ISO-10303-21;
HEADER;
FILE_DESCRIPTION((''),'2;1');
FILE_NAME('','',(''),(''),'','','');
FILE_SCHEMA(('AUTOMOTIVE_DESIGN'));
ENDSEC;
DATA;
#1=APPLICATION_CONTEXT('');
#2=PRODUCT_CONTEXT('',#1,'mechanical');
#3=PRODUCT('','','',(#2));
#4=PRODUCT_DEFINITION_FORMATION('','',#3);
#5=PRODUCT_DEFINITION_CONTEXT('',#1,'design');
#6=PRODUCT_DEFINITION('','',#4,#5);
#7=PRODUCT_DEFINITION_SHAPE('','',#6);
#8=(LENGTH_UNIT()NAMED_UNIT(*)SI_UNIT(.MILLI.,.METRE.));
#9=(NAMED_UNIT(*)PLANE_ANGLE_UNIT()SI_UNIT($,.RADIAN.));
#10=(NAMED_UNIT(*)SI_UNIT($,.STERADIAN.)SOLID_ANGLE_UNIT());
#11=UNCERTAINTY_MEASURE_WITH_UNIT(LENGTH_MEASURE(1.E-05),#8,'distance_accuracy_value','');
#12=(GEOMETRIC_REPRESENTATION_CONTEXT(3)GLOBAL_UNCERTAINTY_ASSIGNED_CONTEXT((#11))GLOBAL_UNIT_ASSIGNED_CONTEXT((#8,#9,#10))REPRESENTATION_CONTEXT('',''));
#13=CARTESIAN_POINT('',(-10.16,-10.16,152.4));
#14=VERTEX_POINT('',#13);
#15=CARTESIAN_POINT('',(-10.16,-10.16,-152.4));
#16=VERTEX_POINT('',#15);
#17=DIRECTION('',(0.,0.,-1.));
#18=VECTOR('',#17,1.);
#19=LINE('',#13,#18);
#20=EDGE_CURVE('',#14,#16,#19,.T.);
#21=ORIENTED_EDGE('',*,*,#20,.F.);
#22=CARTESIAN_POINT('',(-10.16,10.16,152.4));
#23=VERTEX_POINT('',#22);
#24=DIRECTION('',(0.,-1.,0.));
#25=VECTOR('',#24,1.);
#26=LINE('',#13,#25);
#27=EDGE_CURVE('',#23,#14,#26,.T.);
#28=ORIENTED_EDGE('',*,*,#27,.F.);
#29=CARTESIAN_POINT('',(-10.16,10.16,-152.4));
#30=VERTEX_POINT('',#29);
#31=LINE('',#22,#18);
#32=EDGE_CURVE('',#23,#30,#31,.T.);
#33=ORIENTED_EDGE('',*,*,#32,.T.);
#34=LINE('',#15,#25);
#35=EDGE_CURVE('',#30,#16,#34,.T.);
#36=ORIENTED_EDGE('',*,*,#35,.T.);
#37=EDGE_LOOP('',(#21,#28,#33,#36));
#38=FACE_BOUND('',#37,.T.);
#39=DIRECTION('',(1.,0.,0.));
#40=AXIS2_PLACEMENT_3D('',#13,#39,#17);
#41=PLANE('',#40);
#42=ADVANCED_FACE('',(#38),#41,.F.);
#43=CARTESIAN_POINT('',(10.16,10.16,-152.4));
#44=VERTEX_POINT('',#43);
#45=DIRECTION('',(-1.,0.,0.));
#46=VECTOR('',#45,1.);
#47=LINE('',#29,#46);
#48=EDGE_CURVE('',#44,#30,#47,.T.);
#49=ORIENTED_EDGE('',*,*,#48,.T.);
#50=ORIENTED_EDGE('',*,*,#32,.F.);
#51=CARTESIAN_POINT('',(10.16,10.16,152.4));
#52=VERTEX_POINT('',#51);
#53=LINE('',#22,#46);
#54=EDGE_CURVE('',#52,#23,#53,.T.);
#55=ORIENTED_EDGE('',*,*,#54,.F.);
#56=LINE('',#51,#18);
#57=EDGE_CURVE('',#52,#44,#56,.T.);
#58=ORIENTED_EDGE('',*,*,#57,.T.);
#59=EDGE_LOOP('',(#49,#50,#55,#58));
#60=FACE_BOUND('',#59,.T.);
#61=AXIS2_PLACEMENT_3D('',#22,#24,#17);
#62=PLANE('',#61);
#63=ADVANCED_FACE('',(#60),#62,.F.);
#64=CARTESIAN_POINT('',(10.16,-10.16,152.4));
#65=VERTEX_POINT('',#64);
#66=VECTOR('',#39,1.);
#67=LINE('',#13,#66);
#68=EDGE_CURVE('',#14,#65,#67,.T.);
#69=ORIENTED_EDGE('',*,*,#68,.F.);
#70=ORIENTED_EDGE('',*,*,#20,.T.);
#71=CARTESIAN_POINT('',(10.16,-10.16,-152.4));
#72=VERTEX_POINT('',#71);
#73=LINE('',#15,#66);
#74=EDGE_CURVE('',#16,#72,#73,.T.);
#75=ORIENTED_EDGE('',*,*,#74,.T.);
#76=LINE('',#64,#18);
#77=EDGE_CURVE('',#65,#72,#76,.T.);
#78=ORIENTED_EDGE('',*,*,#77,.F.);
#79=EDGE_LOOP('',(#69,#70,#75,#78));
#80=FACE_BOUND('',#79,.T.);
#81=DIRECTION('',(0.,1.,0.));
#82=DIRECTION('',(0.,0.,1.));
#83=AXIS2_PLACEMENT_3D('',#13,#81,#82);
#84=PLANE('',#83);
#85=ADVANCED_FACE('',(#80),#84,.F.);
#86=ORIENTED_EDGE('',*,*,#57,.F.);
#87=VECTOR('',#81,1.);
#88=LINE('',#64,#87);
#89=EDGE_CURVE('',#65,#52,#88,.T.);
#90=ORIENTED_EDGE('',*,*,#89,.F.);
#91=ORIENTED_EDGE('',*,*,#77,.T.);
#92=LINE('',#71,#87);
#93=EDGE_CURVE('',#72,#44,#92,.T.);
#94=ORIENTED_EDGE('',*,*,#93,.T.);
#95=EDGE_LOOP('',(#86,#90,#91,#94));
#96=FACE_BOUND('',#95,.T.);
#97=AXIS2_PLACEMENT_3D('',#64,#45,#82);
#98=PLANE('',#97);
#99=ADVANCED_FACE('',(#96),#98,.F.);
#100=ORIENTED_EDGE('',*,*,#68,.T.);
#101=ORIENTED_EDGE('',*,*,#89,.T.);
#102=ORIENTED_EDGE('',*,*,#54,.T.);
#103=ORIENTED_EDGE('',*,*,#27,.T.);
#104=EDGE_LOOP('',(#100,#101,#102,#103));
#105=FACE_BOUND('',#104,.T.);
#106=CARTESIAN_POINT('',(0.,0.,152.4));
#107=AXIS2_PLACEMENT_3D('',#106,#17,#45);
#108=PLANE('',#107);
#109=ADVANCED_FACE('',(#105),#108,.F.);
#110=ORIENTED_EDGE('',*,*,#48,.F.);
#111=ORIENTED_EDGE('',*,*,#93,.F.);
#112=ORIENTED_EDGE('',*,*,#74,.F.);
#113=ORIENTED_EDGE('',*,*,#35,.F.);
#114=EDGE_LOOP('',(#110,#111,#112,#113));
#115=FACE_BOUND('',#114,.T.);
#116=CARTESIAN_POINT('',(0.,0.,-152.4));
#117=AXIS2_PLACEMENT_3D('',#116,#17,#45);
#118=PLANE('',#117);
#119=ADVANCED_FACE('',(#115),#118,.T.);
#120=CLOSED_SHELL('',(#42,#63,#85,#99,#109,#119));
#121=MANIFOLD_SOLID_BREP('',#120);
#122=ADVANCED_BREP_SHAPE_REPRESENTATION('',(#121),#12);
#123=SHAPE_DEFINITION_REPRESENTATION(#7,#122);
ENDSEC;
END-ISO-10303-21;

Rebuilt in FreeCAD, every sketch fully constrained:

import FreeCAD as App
import Part
import Sketcher
from FreeCAD import Vector
Q = App.Units.Quantity

doc = App.newDocument("Part")
body = doc.addObject("PartDesign::Body", "Body")

sketch1 = body.newObject("Sketcher::SketchObject", "Sketch")
sketch1.AttachmentSupport = (doc.getObject("XY_Plane"), [""])
sketch1.MapMode = "FlatFace"
sketch1.addGeometry([
    Part.LineSegment(Vector(-10, 10, 0), Vector(-10, -10, 0)),
    Part.LineSegment(Vector(-10, -10, 0), Vector(10, -10, 0)),
    Part.LineSegment(Vector(10, -10, 0), Vector(10, 10, 0)),
    Part.LineSegment(Vector(10, 10, 0), Vector(-10, 10, 0)),
], False)
sketch1.addConstraint([
    Sketcher.Constraint("Coincident", 0, 2, 1, 1),
    Sketcher.Constraint("Coincident", 1, 2, 2, 1),
    Sketcher.Constraint("Coincident", 2, 2, 3, 1),
    Sketcher.Constraint("Coincident", 3, 2, 0, 1),
    Sketcher.Constraint("Vertical", 0),
    Sketcher.Constraint("Horizontal", 1),
    Sketcher.Constraint("Vertical", 2),
    Sketcher.Constraint("Horizontal", 3),
    Sketcher.Constraint("Symmetric", 0, 2, 2, 2, -1, 1),
    Sketcher.Constraint("Equal", 3, 0),
    Sketcher.Constraint("DistanceX", 1, 1, 1, 2, Q("0.8 in")),
])
pad1 = body.newObject("PartDesign::Pad", "Pad")
pad1.Profile = sketch1
pad1.Length = Q("12 in")
pad1.Midplane = True

doc.recompute()
